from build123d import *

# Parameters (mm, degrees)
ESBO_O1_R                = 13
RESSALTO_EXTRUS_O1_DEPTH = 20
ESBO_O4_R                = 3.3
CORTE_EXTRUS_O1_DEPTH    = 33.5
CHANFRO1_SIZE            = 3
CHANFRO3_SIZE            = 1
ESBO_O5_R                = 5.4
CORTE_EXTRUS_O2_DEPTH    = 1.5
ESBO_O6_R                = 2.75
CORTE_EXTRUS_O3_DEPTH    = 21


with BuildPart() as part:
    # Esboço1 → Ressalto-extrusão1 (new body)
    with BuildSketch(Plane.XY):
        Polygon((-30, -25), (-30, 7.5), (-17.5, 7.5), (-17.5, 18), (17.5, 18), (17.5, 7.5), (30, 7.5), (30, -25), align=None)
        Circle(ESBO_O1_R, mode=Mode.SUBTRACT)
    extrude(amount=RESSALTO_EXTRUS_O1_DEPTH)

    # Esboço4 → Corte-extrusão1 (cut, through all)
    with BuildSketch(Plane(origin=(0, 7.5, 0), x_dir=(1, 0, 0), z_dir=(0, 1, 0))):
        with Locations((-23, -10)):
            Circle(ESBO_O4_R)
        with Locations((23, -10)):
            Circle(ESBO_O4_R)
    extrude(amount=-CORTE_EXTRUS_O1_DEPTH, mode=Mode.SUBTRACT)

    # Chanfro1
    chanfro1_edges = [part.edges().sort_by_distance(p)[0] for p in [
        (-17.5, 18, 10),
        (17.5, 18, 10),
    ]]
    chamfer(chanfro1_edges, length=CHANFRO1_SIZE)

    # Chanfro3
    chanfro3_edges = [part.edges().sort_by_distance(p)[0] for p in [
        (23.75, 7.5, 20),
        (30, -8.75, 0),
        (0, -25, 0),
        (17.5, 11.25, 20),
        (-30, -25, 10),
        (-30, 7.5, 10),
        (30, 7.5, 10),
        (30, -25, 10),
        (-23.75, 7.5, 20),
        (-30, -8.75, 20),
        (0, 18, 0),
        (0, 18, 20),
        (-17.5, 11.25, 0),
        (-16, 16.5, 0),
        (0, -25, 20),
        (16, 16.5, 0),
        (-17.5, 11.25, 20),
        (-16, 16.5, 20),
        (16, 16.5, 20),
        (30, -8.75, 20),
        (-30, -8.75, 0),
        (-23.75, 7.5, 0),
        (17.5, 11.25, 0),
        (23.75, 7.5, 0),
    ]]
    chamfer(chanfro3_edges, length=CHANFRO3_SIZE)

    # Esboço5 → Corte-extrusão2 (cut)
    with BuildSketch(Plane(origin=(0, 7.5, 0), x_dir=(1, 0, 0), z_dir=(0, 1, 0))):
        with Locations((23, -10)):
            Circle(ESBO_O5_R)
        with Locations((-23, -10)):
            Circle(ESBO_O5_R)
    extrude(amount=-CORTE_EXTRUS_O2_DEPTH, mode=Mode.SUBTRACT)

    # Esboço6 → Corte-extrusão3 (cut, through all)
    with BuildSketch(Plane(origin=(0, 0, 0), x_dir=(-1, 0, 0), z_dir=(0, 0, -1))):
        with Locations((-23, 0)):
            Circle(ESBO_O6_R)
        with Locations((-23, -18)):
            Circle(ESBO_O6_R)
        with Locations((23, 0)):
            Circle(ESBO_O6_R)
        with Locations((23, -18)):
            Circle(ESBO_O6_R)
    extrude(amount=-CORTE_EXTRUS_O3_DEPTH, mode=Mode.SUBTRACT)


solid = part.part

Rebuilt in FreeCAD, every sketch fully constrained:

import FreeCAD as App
import Part
import Sketcher
Q = App.Units.Quantity


def edges_at(feature, points):
    """Names of the edges that pass closest to the given points."""
    edges = feature.Shape.Edges
    near = lambda p: min(range(len(edges)), key=lambda i: edges[i].distToShape(Part.Vertex(*p))[0])
    return sorted({f"Edge{near(p) + 1}" for p in points})


def add_polygon(sketch, points):
    """Adds a closed chain of lines whose ends are joined by coincident constraints."""
    first, n = sketch.GeometryCount, len(points)
    for a, b in zip(points, points[1:] + points[:1]):
        sketch.addGeometry(Part.LineSegment(App.Vector(*a, 0), App.Vector(*b, 0)), False)
    for i in range(n):
        sketch.addConstraint(Sketcher.Constraint("Coincident", first + i, 2, first + (i + 1) % n, 1))

doc = App.newDocument("Part")
params = doc.addObject("Spreadsheet::Sheet", "Params")
for row, (alias, value) in enumerate([
    ("sketch1_diameter", "26 mm"),
    ("sketch1_width", "60 mm"),
    ("sketch1_width2", "35 mm"),
    ("sketch1_height", "32.5 mm"),
    ("sketch1_height2", "10.5 mm"),
    ("pad1_length", "20 mm"),
    ("sketch2_diameter", "6.6 mm"),
    ("chamfer_size", "3 mm"),
    ("chamfer2_size", "1 mm"),
    ("sketch3_diameter", "10.8 mm"),
    ("pocket2_length", "1.5 mm"),
    ("sketch4_diameter", "5.5 mm"),
], start=1):
    params.set(f"A{row}", alias)
    params.set(f"B{row}", "=" + value)
    params.setAlias(f"B{row}", alias)

body = doc.addObject("PartDesign::Body", "Body")

sketch1 = doc.addObject("Sketcher::SketchObject", "Sketch")
body.addObject(sketch1)
sketch1.AttachmentSupport = (doc.XY_Plane, [""])
sketch1.MapMode = "FlatFace"
add_polygon(sketch1, [(-30, 8), (-30, -25), (30, -25), (30, 8), (18, 8), (18, 18), (-18, 18), (-18, 8)])
sketch1.addGeometry(Part.Circle(App.Vector(0, 0, 0), App.Vector(0, 0, 1), 13), False)
sketch1.addConstraint([
    Sketcher.Constraint("Vertical", 0),
    Sketcher.Constraint("Horizontal", 1),
    Sketcher.Constraint("Vertical", 2),
    Sketcher.Constraint("Horizontal", 3),
    Sketcher.Constraint("Vertical", 4),
    Sketcher.Constraint("Horizontal", 5),
    Sketcher.Constraint("Vertical", 6),
    Sketcher.Constraint("Horizontal", 7),
    Sketcher.Constraint("Coincident", 8, 3, -1, 1),
    Sketcher.Constraint("Symmetric", 3, 2, 6, 2, -2),
    Sketcher.Constraint("Equal", 3, 7),
    Sketcher.Constraint("Diameter", 8, Q("26 mm")),
    Sketcher.Constraint("DistanceX", 1, 1, 1, 2, Q("60 mm")),
    Sketcher.Constraint("DistanceX", 5, 2, 5, 1, Q("35 mm")),
    Sketcher.Constraint("DistanceY", 0, 2, 0, 1, Q("32.5 mm")),
    Sketcher.Constraint("DistanceY", 4, 1, 4, 2, Q("10.5 mm")),
    Sketcher.Constraint("DistanceY", 0, 2, -1, 1, Q("25 mm")),
])
sketch1.setExpression("Constraints[19]", "Params.sketch1_diameter")
sketch1.setExpression("Constraints[20]", "Params.sketch1_width")
sketch1.setExpression("Constraints[21]", "Params.sketch1_width2")
sketch1.setExpression("Constraints[22]", "Params.sketch1_height")
sketch1.setExpression("Constraints[23]", "Params.sketch1_height2")
pad1 = doc.addObject("PartDesign::Pad", "Pad")
body.addObject(pad1)
pad1.Profile = sketch1
pad1.setExpression("Length", "Params.pad1_length")

sketch2 = doc.addObject("Sketcher::SketchObject", "Sketch001")
body.addObject(sketch2)
sketch2.AttachmentSupport = (doc.XZ_Plane, [""])
sketch2.MapMode = "FlatFace"
sketch2.AttachmentOffset = App.Placement(App.Vector(0, 0, -7.5), App.Rotation())
sketch2.addGeometry([
    Part.Circle(App.Vector(-23, 10, 0), App.Vector(0, 0, 1), 3.3),
    Part.Circle(App.Vector(23, 10, 0), App.Vector(0, 0, 1), 3.3),
], False)
sketch2.addConstraint([
    Sketcher.Constraint("Equal", 0, 1),
    Sketcher.Constraint("Symmetric", 0, 3, 1, 3, -2),
    Sketcher.Constraint("Diameter", 0, Q("6.6 mm")),
    Sketcher.Constraint("DistanceX", 0, 3, -1, 1, Q("23 mm")),
    Sketcher.Constraint("DistanceY", -1, 1, 0, 3, Q("10 mm")),
])
sketch2.setExpression("Constraints[2]", "Params.sketch2_diameter")
pocket1 = doc.addObject("PartDesign::Pocket", "Pocket")
body.addObject(pocket1)
pocket1.Profile = sketch2
pocket1.Type = "ThroughAll"
pocket1.Reversed = True
doc.recompute()

chamfer = doc.addObject("PartDesign::Chamfer", "Chamfer")
body.addObject(chamfer)
chamfer.Base = (pocket1, edges_at(pocket1, [(-17.5, 18, 10), (17.5, 18, 10)]))
chamfer.setExpression("Size", "Params.chamfer_size")
doc.recompute()

chamfer2 = doc.addObject("PartDesign::Chamfer", "Chamfer001")
body.addObject(chamfer2)
chamfer2.Base = (chamfer, edges_at(chamfer, [
    (23.75, 7.5, 20),
    (30, -8.75, 0),
    (0, -25, 0),
    (17.5, 11.25, 20),
    (-30, -25, 10),
    (-30, 7.5, 10),
    (30, 7.5, 10),
    (30, -25, 10),
    (-23.75, 7.5, 20),
    (-30, -8.75, 20),
    (0, 18, 0),
    (0, 18, 20),
    (-17.5, 11.25, 0),
    (-16, 16.5, 0),
    (0, -25, 20),
    (16, 16.5, 0),
    (-17.5, 11.25, 20),
    (-16, 16.5, 20),
    (16, 16.5, 20),
    (30, -8.75, 20),
    (-30, -8.75, 0),
    (-23.75, 7.5, 0),
    (17.5, 11.25, 0),
    (23.75, 7.5, 0),
]))
chamfer2.setExpression("Size", "Params.chamfer2_size")

sketch3 = doc.addObject("Sketcher::SketchObject", "Sketch002")
body.addObject(sketch3)
sketch3.AttachmentSupport = (doc.XZ_Plane, [""])
sketch3.MapMode = "FlatFace"
sketch3.AttachmentOffset = App.Placement(App.Vector(0, 0, -7.5), App.Rotation())
sketch3.addGeometry([
    Part.Circle(App.Vector(23, 10, 0), App.Vector(0, 0, 1), 5),
    Part.Circle(App.Vector(-23, 10, 0), App.Vector(0, 0, 1), 5),
], False)
sketch3.addConstraint([
    Sketcher.Constraint("Equal", 0, 1),
    Sketcher.Constraint("Symmetric", 0, 3, 1, 3, -2),
    Sketcher.Constraint("Diameter", 0, Q("10.8 mm")),
    Sketcher.Constraint("DistanceX", -1, 1, 0, 3, Q("23 mm")),
    Sketcher.Constraint("DistanceY", -1, 1, 0, 3, Q("10 mm")),
])
sketch3.setExpression("Constraints[2]", "Params.sketch3_diameter")
pocket2 = doc.addObject("PartDesign::Pocket", "Pocket001")
body.addObject(pocket2)
pocket2.Profile = sketch3
pocket2.setExpression("Length", "Params.pocket2_length")
pocket2.Reversed = True

sketch4 = doc.addObject("Sketcher::SketchObject", "Sketch003")
body.addObject(sketch4)
sketch4.AttachmentSupport = (doc.XY_Plane, [""])
sketch4.MapMode = "FlatFace"
sketch4.addGeometry([
    Part.Circle(App.Vector(23, 0, 0), App.Vector(0, 0, 1), 2.8),
    Part.Circle(App.Vector(23, -18, 0), App.Vector(0, 0, 1), 2.8),
    Part.Circle(App.Vector(-23, 0, 0), App.Vector(0, 0, 1), 2.8),
    Part.Circle(App.Vector(-23, -18, 0), App.Vector(0, 0, 1), 2.8),
], False)
sketch4.addConstraint([
    Sketcher.Constraint("Equal", 0, 1),
    Sketcher.Constraint("Equal", 1, 2),
    Sketcher.Constraint("Equal", 2, 3),
    Sketcher.Constraint("Symmetric", 0, 3, 2, 3, -1, 1),
    Sketcher.Constraint("Symmetric", 1, 3, 3, 3, -2),
    Sketcher.Constraint("PointOnObject", 0, 3, -1),
    Sketcher.Constraint("Vertical", 0, 3, 1, 3),
    Sketcher.Constraint("Diameter", 0, Q("5.5 mm")),
    Sketcher.Constraint("DistanceX", -1, 1, 0, 3, Q("23 mm")),
    Sketcher.Constraint("DistanceY", 1, 3, -1, 1, Q("18 mm")),
])
sketch4.setExpression("Constraints[7]", "Params.sketch4_diameter")
pocket3 = doc.addObject("PartDesign::Pocket", "Pocket002")
body.addObject(pocket3)
pocket3.Profile = sketch4
pocket3.Type = "ThroughAll"
pocket3.Reversed = True

doc.recompute()
